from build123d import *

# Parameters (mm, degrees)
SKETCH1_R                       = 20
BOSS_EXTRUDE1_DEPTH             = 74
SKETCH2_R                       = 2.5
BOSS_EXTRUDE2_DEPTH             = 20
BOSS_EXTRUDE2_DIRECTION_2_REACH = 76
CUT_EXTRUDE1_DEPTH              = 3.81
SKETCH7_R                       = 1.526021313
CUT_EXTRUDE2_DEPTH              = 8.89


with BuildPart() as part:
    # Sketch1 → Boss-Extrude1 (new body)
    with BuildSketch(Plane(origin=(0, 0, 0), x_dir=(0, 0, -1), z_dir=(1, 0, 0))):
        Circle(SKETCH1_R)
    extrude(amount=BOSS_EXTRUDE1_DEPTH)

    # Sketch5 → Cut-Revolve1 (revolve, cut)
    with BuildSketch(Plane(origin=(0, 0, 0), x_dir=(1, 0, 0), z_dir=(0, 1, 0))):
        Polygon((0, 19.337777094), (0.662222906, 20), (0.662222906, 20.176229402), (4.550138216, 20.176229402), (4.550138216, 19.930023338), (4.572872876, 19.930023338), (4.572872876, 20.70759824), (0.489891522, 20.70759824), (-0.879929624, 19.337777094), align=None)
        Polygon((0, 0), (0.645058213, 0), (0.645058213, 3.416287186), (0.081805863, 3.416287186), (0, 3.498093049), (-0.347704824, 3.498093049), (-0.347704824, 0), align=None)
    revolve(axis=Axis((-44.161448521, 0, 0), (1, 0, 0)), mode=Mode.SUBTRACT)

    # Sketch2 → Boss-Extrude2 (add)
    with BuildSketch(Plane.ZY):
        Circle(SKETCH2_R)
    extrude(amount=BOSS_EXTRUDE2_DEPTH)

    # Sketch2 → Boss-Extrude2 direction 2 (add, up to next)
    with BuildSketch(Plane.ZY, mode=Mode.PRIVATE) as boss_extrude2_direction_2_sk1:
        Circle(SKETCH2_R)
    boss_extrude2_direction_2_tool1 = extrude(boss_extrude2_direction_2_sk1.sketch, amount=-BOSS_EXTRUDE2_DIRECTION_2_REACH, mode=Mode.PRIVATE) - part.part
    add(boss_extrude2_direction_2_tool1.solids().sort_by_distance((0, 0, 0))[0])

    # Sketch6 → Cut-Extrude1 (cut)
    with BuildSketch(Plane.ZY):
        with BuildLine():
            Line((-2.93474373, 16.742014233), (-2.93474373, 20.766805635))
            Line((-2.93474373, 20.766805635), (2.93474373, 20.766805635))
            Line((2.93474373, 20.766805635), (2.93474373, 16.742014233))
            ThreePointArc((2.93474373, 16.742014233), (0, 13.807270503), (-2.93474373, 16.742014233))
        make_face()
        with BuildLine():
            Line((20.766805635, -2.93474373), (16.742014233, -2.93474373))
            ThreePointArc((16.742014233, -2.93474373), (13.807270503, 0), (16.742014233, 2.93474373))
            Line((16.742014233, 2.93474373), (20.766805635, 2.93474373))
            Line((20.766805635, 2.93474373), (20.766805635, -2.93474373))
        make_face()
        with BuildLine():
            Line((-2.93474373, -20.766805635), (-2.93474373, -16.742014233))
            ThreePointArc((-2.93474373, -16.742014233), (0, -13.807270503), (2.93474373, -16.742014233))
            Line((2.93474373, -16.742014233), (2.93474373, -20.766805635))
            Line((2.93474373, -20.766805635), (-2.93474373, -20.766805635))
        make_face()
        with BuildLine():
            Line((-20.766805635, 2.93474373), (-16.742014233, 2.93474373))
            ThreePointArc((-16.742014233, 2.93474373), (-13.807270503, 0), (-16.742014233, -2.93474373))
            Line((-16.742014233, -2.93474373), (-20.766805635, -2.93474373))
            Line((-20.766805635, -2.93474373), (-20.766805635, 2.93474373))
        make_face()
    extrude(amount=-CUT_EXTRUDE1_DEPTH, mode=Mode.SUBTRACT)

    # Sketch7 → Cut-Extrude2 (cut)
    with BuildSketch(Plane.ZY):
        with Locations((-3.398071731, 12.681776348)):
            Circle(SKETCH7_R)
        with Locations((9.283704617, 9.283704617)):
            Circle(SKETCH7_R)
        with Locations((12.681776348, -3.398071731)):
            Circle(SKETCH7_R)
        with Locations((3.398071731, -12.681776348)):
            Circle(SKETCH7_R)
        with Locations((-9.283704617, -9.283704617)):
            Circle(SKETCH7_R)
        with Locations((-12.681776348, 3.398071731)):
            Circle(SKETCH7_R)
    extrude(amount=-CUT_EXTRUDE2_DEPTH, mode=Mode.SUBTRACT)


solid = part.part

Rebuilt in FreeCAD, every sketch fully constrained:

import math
import FreeCAD as App
import Part
import Sketcher
from FreeCAD import Vector
Q = App.Units.Quantity

doc = App.newDocument("Part")
body = doc.addObject("PartDesign::Body", "Body")
body.AllowCompound = True

sketch1 = body.newObject("Sketcher::SketchObject", "Sketch")
sketch1.AttachmentSupport = (doc.getObject("YZ_Plane"), [""])
sketch1.MapMode = "FlatFace"
sketch1.addGeometry(Part.Circle(Vector(0, 0, 0), Vector(0, 0, 1), 20), False)
sketch1.addConstraint(Sketcher.Constraint("Coincident", 0, 3, -1, 1))
sketch1.addConstraint(Sketcher.Constraint("Diameter", 0, Q("40 mm")))
pad1 = body.newObject("PartDesign::Pad", "Pad")
pad1.Profile = sketch1
pad1.Length = 74

sketch2 = body.newObject("Sketcher::SketchObject", "Sketch001")
sketch2.AttachmentSupport = (doc.getObject("XZ_Plane"), [""])
sketch2.MapMode = "FlatFace"
sketch2.addGeometry(Part.LineSegment(Vector(0, -19.337777, 0), Vector(0.662223, -20, 0)), False)
sketch2.addGeometry(Part.LineSegment(Vector(0.662223, -20, 0), Vector(0.662223, -20.176229, 0)), False)
sketch2.addGeometry(Part.LineSegment(Vector(0.662223, -20.176229, 0), Vector(4.550138, -20.176229, 0)), False)
sketch2.addGeometry(Part.LineSegment(Vector(4.550138, -20.176229, 0), Vector(4.550138, -19.930023, 0)), False)
sketch2.addGeometry(Part.LineSegment(Vector(4.550138, -19.930023, 0), Vector(4.572873, -19.930023, 0)), False)
sketch2.addGeometry(Part.LineSegment(Vector(4.572873, -19.930023, 0), Vector(4.572873, -20.707598, 0)), False)
sketch2.addGeometry(Part.LineSegment(Vector(4.572873, -20.707598, 0), Vector(0.489892, -20.707598, 0)), False)
sketch2.addGeometry(Part.LineSegment(Vector(0.489892, -20.707598, 0), Vector(-0.87993, -19.337777, 0)), False)
sketch2.addGeometry(Part.LineSegment(Vector(-0.87993, -19.337777, 0), Vector(0, -19.337777, 0)), False)
sketch2.addGeometry(Part.LineSegment(Vector(0.645058, 0, 0), Vector(0.645058, -3.416287, 0)), False)
sketch2.addGeometry(Part.LineSegment(Vector(0.645058, -3.416287, 0), Vector(0.081806, -3.416287, 0)), False)
sketch2.addGeometry(Part.LineSegment(Vector(0.081806, -3.416287, 0), Vector(0, -3.498093, 0)), False)
sketch2.addGeometry(Part.LineSegment(Vector(0, -3.498093, 0), Vector(-0.347705, -3.498093, 0)), False)
sketch2.addGeometry(Part.LineSegment(Vector(-0.347705, -3.498093, 0), Vector(-0.347705, 0, 0)), False)
sketch2.addGeometry(Part.LineSegment(Vector(-0.347705, 0, 0), Vector(0.645058, 0, 0)), False)
sketch2.addConstraint(Sketcher.Constraint("Coincident", 0, 2, 1, 1))
sketch2.addConstraint(Sketcher.Constraint("Coincident", 1, 2, 2, 1))
sketch2.addConstraint(Sketcher.Constraint("Coincident", 2, 2, 3, 1))
sketch2.addConstraint(Sketcher.Constraint("Coincident", 3, 2, 4, 1))
sketch2.addConstraint(Sketcher.Constraint("Coincident", 4, 2, 5, 1))
sketch2.addConstraint(Sketcher.Constraint("Coincident", 5, 2, 6, 1))
sketch2.addConstraint(Sketcher.Constraint("Coincident", 6, 2, 7, 1))
sketch2.addConstraint(Sketcher.Constraint("Coincident", 7, 2, 8, 1))
sketch2.addConstraint(Sketcher.Constraint("Coincident", 8, 2, 0, 1))
sketch2.addConstraint(Sketcher.Constraint("Coincident", 9, 2, 10, 1))
sketch2.addConstraint(Sketcher.Constraint("Coincident", 10, 2, 11, 1))
sketch2.addConstraint(Sketcher.Constraint("Coincident", 11, 2, 12, 1))
sketch2.addConstraint(Sketcher.Constraint("Coincident", 12, 2, 13, 1))
sketch2.addConstraint(Sketcher.Constraint("Coincident", 13, 2, 14, 1))
sketch2.addConstraint(Sketcher.Constraint("Coincident", 14, 2, 9, 1))
sketch2.addConstraint(Sketcher.Constraint("Vertical", 1))
sketch2.addConstraint(Sketcher.Constraint("Horizontal", 2))
sketch2.addConstraint(Sketcher.Constraint("Vertical", 3))
sketch2.addConstraint(Sketcher.Constraint("Horizontal", 4))
sketch2.addConstraint(Sketcher.Constraint("Vertical", 5))
sketch2.addConstraint(Sketcher.Constraint("Horizontal", 6))
sketch2.addConstraint(Sketcher.Constraint("Horizontal", 8))
sketch2.addConstraint(Sketcher.Constraint("Vertical", 9))
sketch2.addConstraint(Sketcher.Constraint("Horizontal", 10))
sketch2.addConstraint(Sketcher.Constraint("Horizontal", 12))
sketch2.addConstraint(Sketcher.Constraint("Vertical", 13))
sketch2.addConstraint(Sketcher.Constraint("Horizontal", 14))
sketch2.addConstraint(Sketcher.Constraint("PointOnObject", 8, 2, -2))
sketch2.addConstraint(Sketcher.Constraint("PointOnObject", 11, 2, -2))
sketch2.addConstraint(Sketcher.Constraint("PointOnObject", 13, 2, -1))
sketch2.addConstraint(Sketcher.Constraint("Parallel", 0, 7))
sketch2.addConstraint(Sketcher.Constraint("Perpendicular", 7, 11))
sketch2.addConstraint(Sketcher.Constraint("Angle", 0, Q("-45 deg")))
sketch2.addConstraint(Sketcher.Constraint("DistanceY", 0, 2, -1, 1, Q("20 mm")))
sketch2.addConstraint(Sketcher.Constraint("DistanceX", 6, 2, 6, 1, Q("4.082981 mm")))
sketch2.addConstraint(Sketcher.Constraint("DistanceX", 8, 1, 8, 2, Q("0.87993 mm")))
sketch2.addConstraint(Sketcher.Constraint("DistanceY", 1, 2, 1, 1, Q("0.176229 mm")))
sketch2.addConstraint(Sketcher.Constraint("DistanceY", 5, 2, -1, 1, Q("20.707598 mm")))
sketch2.addConstraint(Sketcher.Constraint("Distance", 7, Q("1.93722 mm")))
sketch2.addConstraint(Sketcher.Constraint("Distance", 11, Q("0.115691 mm")))
sketch2.addConstraint(Sketcher.Constraint("DistanceX", 2, 1, 2, 2, Q("3.887915 mm")))
sketch2.addConstraint(Sketcher.Constraint("DistanceX", 10, 2, 10, 1, Q("0.563252 mm")))
sketch2.addConstraint(Sketcher.Constraint("DistanceX", 12, 2, 12, 1, Q("0.347705 mm")))
sketch2.addConstraint(Sketcher.Constraint("DistanceY", 3, 1, 3, 2, Q("0.246206 mm")))
sketch2.addConstraint(Sketcher.Constraint("DistanceY", 9, 2, 9, 1, Q("3.416287 mm")))
groove = body.newObject("PartDesign::Groove", "Groove")
groove.Profile = sketch2
groove.ReferenceAxis = (sketch2, ["H_Axis"])
groove.Angle = 360

sketch3 = body.newObject("Sketcher::SketchObject", "Sketch002")
sketch3.AttachmentSupport = (doc.getObject("YZ_Plane"), [""])
sketch3.MapMode = "FlatFace"
sketch3.addGeometry(Part.Circle(Vector(0, 0, 0), Vector(0, 0, 1), 2.5), False)
sketch3.addConstraint(Sketcher.Constraint("Coincident", 0, 3, -1, 1))
sketch3.addConstraint(Sketcher.Constraint("Diameter", 0, Q("5 mm")))
pad2 = body.newObject("PartDesign::Pad", "Pad001")
pad2.Profile = sketch3
pad2.Length = 20
pad2.Reversed = True

sketch4 = body.newObject("Sketcher::SketchObject", "Sketch003")
sketch4.AttachmentSupport = (doc.getObject("YZ_Plane"), [""])
sketch4.MapMode = "FlatFace"
sketch4.addGeometry(Part.Circle(Vector(0, 0, 0), Vector(0, 0, 1), 2.5), False)
sketch4.addConstraint(Sketcher.Constraint("Coincident", 0, 3, -1, 1))
sketch4.addConstraint(Sketcher.Constraint("Diameter", 0, Q("5 mm")))
pad3 = body.newObject("PartDesign::Pad", "Pad002")
pad3.Profile = sketch4
pad3.Type = "UpToFirst"

sketch5 = body.newObject("Sketcher::SketchObject", "Sketch004")
sketch5.AttachmentSupport = (doc.getObject("YZ_Plane"), [""])
sketch5.MapMode = "FlatFace"
sketch5.addGeometry(Part.LineSegment(Vector(20.766806, -2.934744, 0), Vector(16.742014, -2.934744, 0)), False)
sketch5.addGeometry(Part.ArcOfCircle(Part.Circle(Vector(16.742014, 0, 0), Vector(0, 0, 1), 2.934744), math.radians(90), math.radians(270)), False)
sketch5.addGeometry(Part.LineSegment(Vector(16.742014, 2.934744, 0), Vector(20.766806, 2.934744, 0)), False)
sketch5.addGeometry(Part.LineSegment(Vector(20.766806, 2.934744, 0), Vector(20.766806, -2.934744, 0)), False)
sketch5.addGeometry(Part.LineSegment(Vector(-2.934744, 16.742014, 0), Vector(-2.934744, 20.766806, 0)), False)
sketch5.addGeometry(Part.LineSegment(Vector(-2.934744, 20.766806, 0), Vector(2.934744, 20.766806, 0)), False)
sketch5.addGeometry(Part.LineSegment(Vector(2.934744, 20.766806, 0), Vector(2.934744, 16.742014, 0)), False)
sketch5.addGeometry(Part.ArcOfCircle(Part.Circle(Vector(0, 16.742014, 0), Vector(0, 0, 1), 2.934744), math.radians(180), math.radians(360)), False)
sketch5.addGeometry(Part.LineSegment(Vector(-16.742014, -2.934744, 0), Vector(-20.766806, -2.934744, 0)), False)
sketch5.addGeometry(Part.LineSegment(Vector(-20.766806, -2.934744, 0), Vector(-20.766806, 2.934744, 0)), False)
sketch5.addGeometry(Part.LineSegment(Vector(-20.766806, 2.934744, 0), Vector(-16.742014, 2.934744, 0)), False)
sketch5.addGeometry(Part.ArcOfCircle(Part.Circle(Vector(-16.742014, 0, 0), Vector(0, 0, 1), 2.934744), math.radians(-90), math.radians(90)), False)
sketch5.addGeometry(Part.LineSegment(Vector(2.934744, -16.742014, 0), Vector(2.934744, -20.766806, 0)), False)
sketch5.addGeometry(Part.LineSegment(Vector(2.934744, -20.766806, 0), Vector(-2.934744, -20.766806, 0)), False)
sketch5.addGeometry(Part.LineSegment(Vector(-2.934744, -20.766806, 0), Vector(-2.934744, -16.742014, 0)), False)
sketch5.addGeometry(Part.ArcOfCircle(Part.Circle(Vector(0, -16.742014, 0), Vector(0, 0, 1), 2.934744), math.radians(0), math.radians(180)), False)
sketch5.addConstraint(Sketcher.Constraint("Tangent", 0, 2, 1, 2))
sketch5.addConstraint(Sketcher.Constraint("Tangent", 1, 1, 2, 1))
sketch5.addConstraint(Sketcher.Constraint("Coincident", 2, 2, 3, 1))
sketch5.addConstraint(Sketcher.Constraint("Coincident", 3, 2, 0, 1))
sketch5.addConstraint(Sketcher.Constraint("Coincident", 4, 2, 5, 1))
sketch5.addConstraint(Sketcher.Constraint("Coincident", 5, 2, 6, 1))
sketch5.addConstraint(Sketcher.Constraint("Tangent", 6, 2, 7, 2))
sketch5.addConstraint(Sketcher.Constraint("Tangent", 7, 1, 4, 1))
sketch5.addConstraint(Sketcher.Constraint("Coincident", 8, 2, 9, 1))
sketch5.addConstraint(Sketcher.Constraint("Coincident", 9, 2, 10, 1))
sketch5.addConstraint(Sketcher.Constraint("Tangent", 10, 2, 11, 2))
sketch5.addConstraint(Sketcher.Constraint("Tangent", 11, 1, 8, 1))
sketch5.addConstraint(Sketcher.Constraint("Coincident", 12, 2, 13, 1))
sketch5.addConstraint(Sketcher.Constraint("Coincident", 13, 2, 14, 1))
sketch5.addConstraint(Sketcher.Constraint("Tangent", 14, 2, 15, 2))
sketch5.addConstraint(Sketcher.Constraint("Tangent", 15, 1, 12, 1))
sketch5.addConstraint(Sketcher.Constraint("Horizontal", 0))
sketch5.addConstraint(Sketcher.Constraint("Horizontal", 2))
sketch5.addConstraint(Sketcher.Constraint("Vertical", 3))
sketch5.addConstraint(Sketcher.Constraint("Vertical", 4))
sketch5.addConstraint(Sketcher.Constraint("Horizontal", 5))
sketch5.addConstraint(Sketcher.Constraint("Vertical", 6))
sketch5.addConstraint(Sketcher.Constraint("Horizontal", 8))
sketch5.addConstraint(Sketcher.Constraint("Vertical", 9))
sketch5.addConstraint(Sketcher.Constraint("Horizontal", 10))
sketch5.addConstraint(Sketcher.Constraint("Vertical", 12))
sketch5.addConstraint(Sketcher.Constraint("Horizontal", 13))
sketch5.addConstraint(Sketcher.Constraint("Vertical", 14))
sketch5.addConstraint(Sketcher.Constraint("Equal", 1, 7))
sketch5.addConstraint(Sketcher.Constraint("Equal", 7, 11))
sketch5.addConstraint(Sketcher.Constraint("Equal", 11, 15))
sketch5.addConstraint(Sketcher.Constraint("Symmetric", 1, 3, 11, 3, -1, 1))
sketch5.addConstraint(Sketcher.Constraint("Symmetric", 7, 3, 15, 3, -1, 1))
sketch5.addConstraint(Sketcher.Constraint("Symmetric", 3, 2, 8, 2, -2))
sketch5.addConstraint(Sketcher.Constraint("Symmetric", 5, 2, 12, 2, -1))
sketch5.addConstraint(Sketcher.Constraint("Equal", 10, 4))
sketch5.addConstraint(Sketcher.Constraint("Radius", 1, Q("2.934744 mm")))
sketch5.addConstraint(Sketcher.Constraint("DistanceX", 0, 2, 0, 1, Q("4.024791 mm")))
sketch5.addConstraint(Sketcher.Constraint("DistanceX", 11, 3, 1, 3, Q("33.484028 mm")))
sketch5.addConstraint(Sketcher.Constraint("DistanceY", 15, 3, 7, 3, Q("33.484028 mm")))
pocket1 = body.newObject("PartDesign::Pocket", "Pocket")
pocket1.Profile = sketch5
pocket1.Length = 3.81
pocket1.Reversed = True

sketch6 = body.newObject("Sketcher::SketchObject", "Sketch005")
sketch6.AttachmentSupport = (doc.getObject("YZ_Plane"), [""])
sketch6.MapMode = "FlatFace"
sketch6.addGeometry(Part.Circle(Vector(12.681776, -3.398072, 0), Vector(0, 0, 1), 1.526021), False)
sketch6.addGeometry(Part.Circle(Vector(9.283705, 9.283705, 0), Vector(0, 0, 1), 1.526021), False)
sketch6.addGeometry(Part.Circle(Vector(-3.398072, 12.681776, 0), Vector(0, 0, 1), 1.526021), False)
sketch6.addGeometry(Part.Circle(Vector(-12.681776, 3.398072, 0), Vector(0, 0, 1), 1.526021), False)
sketch6.addGeometry(Part.Circle(Vector(-9.283705, -9.283705, 0), Vector(0, 0, 1), 1.526021), False)
sketch6.addGeometry(Part.Circle(Vector(3.398072, -12.681776, 0), Vector(0, 0, 1), 1.526021), False)
sketch6.addConstraint(Sketcher.Constraint("Equal", 0, 1))
sketch6.addConstraint(Sketcher.Constraint("Equal", 1, 2))
sketch6.addConstraint(Sketcher.Constraint("Equal", 2, 3))
sketch6.addConstraint(Sketcher.Constraint("Equal", 3, 4))
sketch6.addConstraint(Sketcher.Constraint("Equal", 4, 5))
sketch6.addConstraint(Sketcher.Constraint("Symmetric", 0, 3, 3, 3, -1, 1))
sketch6.addConstraint(Sketcher.Constraint("Symmetric", 1, 3, 4, 3, -1, 1))
sketch6.addConstraint(Sketcher.Constraint("Symmetric", 2, 3, 5, 3, -1, 1))
sketch6.addConstraint(Sketcher.Constraint("Diameter", 0, Q("3.052043 mm")))
sketch6.addConstraint(Sketcher.Constraint("DistanceY", 0, 3, -1, 1, Q("3.398072 mm")))
sketch6.addConstraint(Sketcher.Constraint("DistanceX", 2, 3, -1, 1, Q("3.398072 mm")))
sketch6.addConstraint(Sketcher.Constraint("DistanceX", 1, 3, 0, 3, Q("3.398072 mm")))
sketch6.addConstraint(Sketcher.Constraint("DistanceY", 1, 3, 2, 3, Q("3.398072 mm")))
sketch6.addConstraint(Sketcher.Constraint("DistanceX", 2, 3, 0, 3, Q("16.079848 mm")))
sketch6.addConstraint(Sketcher.Constraint("DistanceY", 0, 3, 2, 3, Q("16.079848 mm")))
pocket2 = body.newObject("PartDesign::Pocket", "Pocket001")
pocket2.Profile = sketch6
pocket2.Length = 8.89
pocket2.Reversed = True

doc.recompute()
